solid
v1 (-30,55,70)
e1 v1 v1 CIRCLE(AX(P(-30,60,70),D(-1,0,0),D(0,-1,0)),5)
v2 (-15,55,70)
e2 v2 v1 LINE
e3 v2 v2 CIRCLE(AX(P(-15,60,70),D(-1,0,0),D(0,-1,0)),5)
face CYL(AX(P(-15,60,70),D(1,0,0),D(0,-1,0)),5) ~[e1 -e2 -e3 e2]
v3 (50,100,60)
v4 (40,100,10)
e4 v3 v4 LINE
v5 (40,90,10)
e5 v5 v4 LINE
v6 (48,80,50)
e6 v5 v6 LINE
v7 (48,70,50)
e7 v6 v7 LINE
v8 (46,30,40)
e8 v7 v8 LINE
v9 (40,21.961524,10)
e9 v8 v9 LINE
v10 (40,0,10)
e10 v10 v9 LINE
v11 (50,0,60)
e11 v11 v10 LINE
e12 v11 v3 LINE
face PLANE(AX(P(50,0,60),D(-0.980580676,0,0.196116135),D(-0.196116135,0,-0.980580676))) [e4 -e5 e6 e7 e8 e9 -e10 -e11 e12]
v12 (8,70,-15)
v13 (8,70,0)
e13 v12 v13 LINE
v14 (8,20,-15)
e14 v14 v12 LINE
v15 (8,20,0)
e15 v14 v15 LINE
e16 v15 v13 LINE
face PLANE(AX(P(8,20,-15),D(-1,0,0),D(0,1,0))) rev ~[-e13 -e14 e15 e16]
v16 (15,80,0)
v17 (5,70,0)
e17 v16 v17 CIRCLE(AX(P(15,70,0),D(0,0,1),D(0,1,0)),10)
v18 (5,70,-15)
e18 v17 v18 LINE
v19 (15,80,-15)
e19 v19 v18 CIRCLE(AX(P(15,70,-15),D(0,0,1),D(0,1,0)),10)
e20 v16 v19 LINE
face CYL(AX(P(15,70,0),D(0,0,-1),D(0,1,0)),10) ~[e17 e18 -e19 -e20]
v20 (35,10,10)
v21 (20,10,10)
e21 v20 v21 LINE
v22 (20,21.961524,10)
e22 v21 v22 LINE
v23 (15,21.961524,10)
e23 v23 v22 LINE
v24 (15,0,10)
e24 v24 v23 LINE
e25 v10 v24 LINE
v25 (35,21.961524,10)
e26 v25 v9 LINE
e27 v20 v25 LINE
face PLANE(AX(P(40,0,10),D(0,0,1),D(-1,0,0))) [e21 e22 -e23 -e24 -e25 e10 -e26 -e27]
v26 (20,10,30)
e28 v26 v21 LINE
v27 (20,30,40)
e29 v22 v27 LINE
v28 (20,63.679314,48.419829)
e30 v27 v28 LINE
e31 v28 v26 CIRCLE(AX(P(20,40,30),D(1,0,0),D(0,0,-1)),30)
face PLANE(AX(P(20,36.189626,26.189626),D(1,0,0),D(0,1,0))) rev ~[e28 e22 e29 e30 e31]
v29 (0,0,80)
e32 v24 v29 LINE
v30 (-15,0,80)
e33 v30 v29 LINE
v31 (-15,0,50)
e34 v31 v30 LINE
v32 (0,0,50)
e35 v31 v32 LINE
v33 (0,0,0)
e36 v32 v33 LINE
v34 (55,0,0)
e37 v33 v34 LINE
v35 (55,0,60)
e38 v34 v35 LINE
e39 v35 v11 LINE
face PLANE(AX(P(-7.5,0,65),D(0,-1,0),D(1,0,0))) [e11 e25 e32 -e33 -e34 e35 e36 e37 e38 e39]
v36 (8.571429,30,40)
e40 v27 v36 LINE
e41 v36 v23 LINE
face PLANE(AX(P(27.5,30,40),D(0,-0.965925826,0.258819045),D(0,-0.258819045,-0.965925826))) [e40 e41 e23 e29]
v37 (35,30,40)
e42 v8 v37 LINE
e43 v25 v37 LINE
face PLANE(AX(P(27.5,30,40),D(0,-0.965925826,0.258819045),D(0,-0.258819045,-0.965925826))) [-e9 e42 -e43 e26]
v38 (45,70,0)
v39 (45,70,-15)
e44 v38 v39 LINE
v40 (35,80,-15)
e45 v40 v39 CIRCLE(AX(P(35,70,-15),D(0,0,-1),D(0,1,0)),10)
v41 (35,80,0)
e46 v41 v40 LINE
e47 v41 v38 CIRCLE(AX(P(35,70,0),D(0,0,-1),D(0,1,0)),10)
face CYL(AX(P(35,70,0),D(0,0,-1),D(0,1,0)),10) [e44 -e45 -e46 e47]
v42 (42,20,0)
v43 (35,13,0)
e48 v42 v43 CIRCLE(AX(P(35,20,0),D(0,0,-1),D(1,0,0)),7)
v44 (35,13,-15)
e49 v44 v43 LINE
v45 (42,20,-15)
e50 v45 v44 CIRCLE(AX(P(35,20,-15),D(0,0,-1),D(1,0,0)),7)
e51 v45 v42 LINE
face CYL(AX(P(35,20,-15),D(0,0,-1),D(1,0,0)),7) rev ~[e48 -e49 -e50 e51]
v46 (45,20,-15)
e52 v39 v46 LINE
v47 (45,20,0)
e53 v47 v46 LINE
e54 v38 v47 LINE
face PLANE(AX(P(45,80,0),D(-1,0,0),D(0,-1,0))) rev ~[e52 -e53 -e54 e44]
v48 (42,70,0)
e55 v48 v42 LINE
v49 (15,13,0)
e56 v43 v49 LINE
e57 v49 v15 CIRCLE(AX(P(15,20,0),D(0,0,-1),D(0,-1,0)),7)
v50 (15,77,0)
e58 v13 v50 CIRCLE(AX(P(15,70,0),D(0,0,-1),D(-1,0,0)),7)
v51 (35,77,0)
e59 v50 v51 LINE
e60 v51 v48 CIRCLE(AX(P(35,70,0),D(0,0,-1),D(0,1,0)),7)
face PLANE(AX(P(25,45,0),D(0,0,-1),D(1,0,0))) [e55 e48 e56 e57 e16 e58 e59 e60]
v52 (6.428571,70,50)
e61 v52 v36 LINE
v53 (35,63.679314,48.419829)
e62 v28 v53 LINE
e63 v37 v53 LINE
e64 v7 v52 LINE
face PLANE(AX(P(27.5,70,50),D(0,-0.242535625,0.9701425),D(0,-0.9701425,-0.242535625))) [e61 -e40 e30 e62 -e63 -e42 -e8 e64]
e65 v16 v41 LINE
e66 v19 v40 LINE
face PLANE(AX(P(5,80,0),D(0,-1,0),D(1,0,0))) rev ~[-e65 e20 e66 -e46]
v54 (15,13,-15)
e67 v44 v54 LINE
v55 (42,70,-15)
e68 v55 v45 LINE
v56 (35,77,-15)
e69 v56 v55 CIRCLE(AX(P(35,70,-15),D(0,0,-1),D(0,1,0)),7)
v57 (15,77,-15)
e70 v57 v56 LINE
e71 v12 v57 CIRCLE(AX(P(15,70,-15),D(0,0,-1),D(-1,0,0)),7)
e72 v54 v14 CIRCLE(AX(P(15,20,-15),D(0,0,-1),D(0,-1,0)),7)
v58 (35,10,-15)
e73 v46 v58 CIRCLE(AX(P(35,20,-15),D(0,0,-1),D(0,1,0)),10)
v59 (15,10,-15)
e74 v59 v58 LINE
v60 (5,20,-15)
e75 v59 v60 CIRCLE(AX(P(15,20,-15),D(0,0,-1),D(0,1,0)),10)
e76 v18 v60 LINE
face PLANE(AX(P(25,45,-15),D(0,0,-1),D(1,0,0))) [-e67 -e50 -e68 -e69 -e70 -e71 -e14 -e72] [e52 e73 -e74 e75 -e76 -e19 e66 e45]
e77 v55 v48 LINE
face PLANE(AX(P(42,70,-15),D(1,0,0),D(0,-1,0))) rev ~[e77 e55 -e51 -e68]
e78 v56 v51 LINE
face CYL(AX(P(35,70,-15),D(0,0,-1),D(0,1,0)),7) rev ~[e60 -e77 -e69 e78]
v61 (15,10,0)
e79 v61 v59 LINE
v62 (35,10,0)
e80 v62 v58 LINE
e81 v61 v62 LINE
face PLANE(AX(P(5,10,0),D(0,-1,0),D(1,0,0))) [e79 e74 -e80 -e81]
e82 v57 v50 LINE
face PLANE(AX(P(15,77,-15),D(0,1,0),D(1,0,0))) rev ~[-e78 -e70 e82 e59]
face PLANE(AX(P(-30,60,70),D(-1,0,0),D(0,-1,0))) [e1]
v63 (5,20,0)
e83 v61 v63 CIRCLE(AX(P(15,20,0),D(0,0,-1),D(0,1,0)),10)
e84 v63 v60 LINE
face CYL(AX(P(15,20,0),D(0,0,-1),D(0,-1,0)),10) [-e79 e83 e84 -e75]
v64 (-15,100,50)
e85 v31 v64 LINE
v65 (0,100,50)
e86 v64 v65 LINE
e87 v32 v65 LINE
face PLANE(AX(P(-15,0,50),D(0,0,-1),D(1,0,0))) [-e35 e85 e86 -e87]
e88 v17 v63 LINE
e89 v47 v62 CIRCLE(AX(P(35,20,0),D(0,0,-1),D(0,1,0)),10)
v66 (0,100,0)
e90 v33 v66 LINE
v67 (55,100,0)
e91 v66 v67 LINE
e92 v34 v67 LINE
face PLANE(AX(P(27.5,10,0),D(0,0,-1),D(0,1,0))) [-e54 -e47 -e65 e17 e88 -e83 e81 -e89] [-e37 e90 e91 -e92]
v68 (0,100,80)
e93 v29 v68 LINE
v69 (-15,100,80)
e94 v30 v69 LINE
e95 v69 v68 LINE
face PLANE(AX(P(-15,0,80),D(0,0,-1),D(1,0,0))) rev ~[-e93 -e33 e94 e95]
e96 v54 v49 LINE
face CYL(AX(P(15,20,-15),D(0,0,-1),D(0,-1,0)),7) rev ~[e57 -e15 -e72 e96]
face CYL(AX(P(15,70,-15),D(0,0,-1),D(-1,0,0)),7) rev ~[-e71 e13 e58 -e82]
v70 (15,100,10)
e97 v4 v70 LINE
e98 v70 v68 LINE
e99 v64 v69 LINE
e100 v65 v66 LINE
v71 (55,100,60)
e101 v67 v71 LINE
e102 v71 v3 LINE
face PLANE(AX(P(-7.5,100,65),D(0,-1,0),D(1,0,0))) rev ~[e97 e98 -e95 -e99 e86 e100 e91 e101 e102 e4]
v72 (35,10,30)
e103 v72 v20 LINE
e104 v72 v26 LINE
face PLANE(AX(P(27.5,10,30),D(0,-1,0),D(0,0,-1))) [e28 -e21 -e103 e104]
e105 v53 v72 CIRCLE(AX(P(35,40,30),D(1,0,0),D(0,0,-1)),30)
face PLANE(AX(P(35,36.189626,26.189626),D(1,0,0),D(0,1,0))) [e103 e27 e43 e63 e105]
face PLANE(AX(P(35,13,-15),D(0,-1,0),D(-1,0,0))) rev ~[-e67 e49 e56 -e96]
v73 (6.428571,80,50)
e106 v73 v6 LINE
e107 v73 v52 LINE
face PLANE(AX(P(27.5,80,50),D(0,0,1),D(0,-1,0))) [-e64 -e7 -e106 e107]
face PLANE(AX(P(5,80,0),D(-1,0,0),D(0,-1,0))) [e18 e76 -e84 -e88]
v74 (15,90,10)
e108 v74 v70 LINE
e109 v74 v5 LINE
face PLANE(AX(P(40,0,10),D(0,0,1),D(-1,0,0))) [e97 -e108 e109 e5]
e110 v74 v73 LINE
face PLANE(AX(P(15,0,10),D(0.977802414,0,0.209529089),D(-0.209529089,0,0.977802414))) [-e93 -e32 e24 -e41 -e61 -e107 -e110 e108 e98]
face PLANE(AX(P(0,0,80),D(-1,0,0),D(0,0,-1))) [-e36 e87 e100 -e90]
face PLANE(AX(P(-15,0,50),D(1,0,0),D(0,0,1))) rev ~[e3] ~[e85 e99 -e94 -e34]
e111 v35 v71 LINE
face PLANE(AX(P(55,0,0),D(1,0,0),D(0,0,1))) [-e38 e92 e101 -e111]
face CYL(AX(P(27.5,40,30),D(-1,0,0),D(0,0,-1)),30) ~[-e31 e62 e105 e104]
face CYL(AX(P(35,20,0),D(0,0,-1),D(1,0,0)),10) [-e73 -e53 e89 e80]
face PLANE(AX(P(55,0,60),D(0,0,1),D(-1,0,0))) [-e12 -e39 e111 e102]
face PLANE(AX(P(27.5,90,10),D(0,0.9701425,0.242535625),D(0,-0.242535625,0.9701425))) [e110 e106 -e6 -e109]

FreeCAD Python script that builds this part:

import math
import FreeCAD as App
import Part
import Sketcher
Q = App.Units.Quantity


def edges_at(feature, points):
    """Names of the edges that pass closest to the given points."""
    edges = feature.Shape.Edges
    near = lambda p: min(range(len(edges)), key=lambda i: edges[i].distToShape(Part.Vertex(*p))[0])
    return sorted({f"Edge{near(p) + 1}" for p in points})

doc = App.newDocument("Part")
body = doc.addObject("PartDesign::Body", "Body")

# Sketch on XZ plane
sketch1 = body.newObject("Sketcher::SketchObject", "Sketch")
sketch1.AttachmentSupport = (doc.getObject("XZ_Plane"), [""])
sketch1.MapMode = "FlatFace"
sketch1.addGeometry([
    Part.LineSegment(App.Vector(15, 10, 0), App.Vector(0, 80, 0)),  # 0
    Part.LineSegment(App.Vector(0, 80, 0), App.Vector(0, 0, 0)),  # 1
    Part.LineSegment(App.Vector(0, 0, 0), App.Vector(55, 0, 0)),  # 2
    Part.LineSegment(App.Vector(55, 0, 0), App.Vector(55, 60, 0)),  # 3
    Part.LineSegment(App.Vector(55, 60, 0), App.Vector(50, 60, 0)),  # 4
    Part.LineSegment(App.Vector(50, 60, 0), App.Vector(40, 10, 0)),  # 5
    Part.LineSegment(App.Vector(40, 10, 0), App.Vector(15, 10, 0)),  # 6
], False)
sketch1.addConstraint([
    Sketcher.Constraint("Coincident", 0, 2, 1, 1),
    Sketcher.Constraint("Coincident", 1, 2, 2, 1),
    Sketcher.Constraint("Coincident", 2, 2, 3, 1),
    Sketcher.Constraint("Coincident", 3, 2, 4, 1),
    Sketcher.Constraint("Coincident", 4, 2, 5, 1),
    Sketcher.Constraint("Coincident", 5, 2, 6, 1),
    Sketcher.Constraint("Coincident", 6, 2, 0, 1),
    Sketcher.Constraint("Vertical", 1),
    Sketcher.Constraint("Horizontal", 2),
    Sketcher.Constraint("Vertical", 3),
    Sketcher.Constraint("Horizontal", 4),
    Sketcher.Constraint("Horizontal", 6),
    Sketcher.Constraint("Coincident", 1, 2, -1, 1),
    Sketcher.Constraint("DistanceX", 2, 1, 2, 2, 55.0),
    Sketcher.Constraint("DistanceX", 4, 2, 4, 1, 5.0),
    Sketcher.Constraint("DistanceX", 6, 2, 6, 1, 25.0),
    Sketcher.Constraint("DistanceY", 1, 2, 1, 1, 80.0),
    Sketcher.Constraint("DistanceY", 3, 1, 3, 2, 60.0),
    Sketcher.Constraint("DistanceX", -1, 1, 5, 2, 40.0),
    Sketcher.Constraint("DistanceY", -1, 1, 5, 2, 10.0),
])
pad1 = body.newObject("PartDesign::Pad", "Pad")
pad1.Profile = sketch1
pad1.Length = 100
pad1.Reversed = True

# Sketch on YZ plane
sketch2 = body.newObject("Sketcher::SketchObject", "Sketch001")
sketch2.AttachmentSupport = (doc.getObject("YZ_Plane"), [""])
sketch2.MapMode = "FlatFace"
sketch2.AttachmentOffset = App.Placement(App.Vector(0, 0, 27.5), App.Rotation())
sketch2.addGeometry([
    Part.LineSegment(App.Vector(30, 40, 0), App.Vector(21.961524, 10, 0)),  # 0
    Part.LineSegment(App.Vector(21.961524, 10, 0), App.Vector(90, 10, 0)),  # 1
    Part.LineSegment(App.Vector(90, 10, 0), App.Vector(80, 50, 0)),  # 2
    Part.LineSegment(App.Vector(80, 50, 0), App.Vector(70, 50, 0)),  # 3
    Part.LineSegment(App.Vector(70, 50, 0), App.Vector(30, 40, 0)),  # 4
], False)
sketch2.addConstraint([
    Sketcher.Constraint("Coincident", 0, 2, 1, 1),
    Sketcher.Constraint("Coincident", 1, 2, 2, 1),
    Sketcher.Constraint("Coincident", 2, 2, 3, 1),
    Sketcher.Constraint("Coincident", 3, 2, 4, 1),
    Sketcher.Constraint("Coincident", 4, 2, 0, 1),
    Sketcher.Constraint("Horizontal", 1),
    Sketcher.Constraint("Horizontal", 3),
    Sketcher.Constraint("Perpendicular", 2, 4),
    Sketcher.Constraint("Equal", 2, 4),
    Sketcher.Constraint("DistanceX", 3, 2, 3, 1, 10.0),
    Sketcher.Constraint("Angle", 0, Q("-105 deg")),
    Sketcher.Constraint("DistanceY", -1, 1, 0, 2, 10.0),
    Sketcher.Constraint("DistanceX", -1, 1, 1, 2, 90.0),
    Sketcher.Constraint("DistanceX", -1, 1, 2, 2, 80.0),
    Sketcher.Constraint("DistanceY", -1, 1, 2, 2, 50.0),
])
pad2 = body.newObject("PartDesign::Pad", "Pad001")
pad2.Profile = sketch2
pad2.Type = "TwoLengths"
pad2.Length = 20.5
pad2.Length2 = 21.071429

# Sketch on YZ plane
sketch3 = body.newObject("Sketcher::SketchObject", "Sketch002")
sketch3.AttachmentSupport = (doc.getObject("YZ_Plane"), [""])
sketch3.MapMode = "FlatFace"
sketch3.AttachmentOffset = App.Placement(App.Vector(0, 0, 27.5), App.Rotation())
sketch3.addGeometry([
    Part.LineSegment(App.Vector(10, 0, 0), App.Vector(40, 0, 0)),
    Part.ArcOfCircle(Part.Circle(App.Vector(40, 30, 0), App.Vector(0, 0, 1), 30), math.radians(-90), math.radians(180)),
    Part.LineSegment(App.Vector(10, 30, 0), App.Vector(10, 0, 0)),
], False)
sketch3.addConstraint([
    Sketcher.Constraint("Tangent", 0, 2, 1, 1),
    Sketcher.Constraint("Tangent", 1, 2, 2, 1),
    Sketcher.Constraint("Coincident", 2, 2, 0, 1),
    Sketcher.Constraint("Horizontal", 0),
    Sketcher.Constraint("Vertical", 2),
    Sketcher.Constraint("PointOnObject", 0, 2, -1),
    Sketcher.Constraint("Radius", 1, 30.0),
    Sketcher.Constraint("DistanceX", -1, 1, 1, 3, 40.0),
])
pad3 = body.newObject("PartDesign::Pad", "Pad002")
pad3.Profile = sketch3
pad3.Type = "TwoLengths"
pad3.Length = 7.5
pad3.Length2 = 7.5

# Sketch on XZ plane
sketch4 = body.newObject("Sketcher::SketchObject", "Sketch003")
sketch4.AttachmentSupport = (doc.getObject("XZ_Plane"), [""])
sketch4.MapMode = "FlatFace"
sketch4.addGeometry([
    Part.LineSegment(App.Vector(-15, 80, 0), App.Vector(-15, 50, 0)),
    Part.LineSegment(App.Vector(-15, 50, 0), App.Vector(0, 50, 0)),
    Part.LineSegment(App.Vector(0, 50, 0), App.Vector(0, 80, 0)),
    Part.LineSegment(App.Vector(0, 80, 0), App.Vector(-15, 80, 0)),
], False)
sketch4.addConstraint([
    Sketcher.Constraint("Coincident", 0, 2, 1, 1),
    Sketcher.Constraint("Coincident", 1, 2, 2, 1),
    Sketcher.Constraint("Coincident", 2, 2, 3, 1),
    Sketcher.Constraint("Coincident", 3, 2, 0, 1),
    Sketcher.Constraint("Vertical", 0),
    Sketcher.Constraint("Horizontal", 1),
    Sketcher.Constraint("Vertical", 2),
    Sketcher.Constraint("Horizontal", 3),
    Sketcher.Constraint("PointOnObject", 1, 2, -2),
    Sketcher.Constraint("DistanceX", 1, 1, 1, 2, 15.0),
    Sketcher.Constraint("DistanceY", 0, 2, 0, 1, 30.0),
    Sketcher.Constraint("DistanceY", -1, 1, 0, 2, 50.0),
])
pad4 = body.newObject("PartDesign::Pad", "Pad003")
pad4.Profile = sketch4
pad4.Length = 100
pad4.Reversed = True

# Sketch on YZ plane
sketch5 = body.newObject("Sketcher::SketchObject", "Sketch004")
sketch5.AttachmentSupport = (doc.getObject("YZ_Plane"), [""])
sketch5.MapMode = "FlatFace"
sketch5.AttachmentOffset = App.Placement(App.Vector(0, 0, -15), App.Rotation())
sketch5.addGeometry(Part.Circle(App.Vector(60, 70, 0), App.Vector(0, 0, 1), 5), False)
sketch5.addConstraint([
    Sketcher.Constraint("Diameter", 0, 10.0),
    Sketcher.Constraint("DistanceX", -1, 1, 0, 3, 60.0),
    Sketcher.Constraint("DistanceY", -1, 1, 0, 3, 70.0),
])
pad5 = body.newObject("PartDesign::Pad", "Pad004")
pad5.Profile = sketch5
pad5.Length = 15
pad5.Reversed = True

# Sketch on XY plane
sketch6 = body.newObject("Sketcher::SketchObject", "Sketch005")
sketch6.AttachmentSupport = (doc.getObject("XY_Plane"), [""])
sketch6.MapMode = "FlatFace"
sketch6.addGeometry([
    Part.LineSegment(App.Vector(5, 10, 0), App.Vector(5, 80, 0)),
    Part.LineSegment(App.Vector(5, 80, 0), App.Vector(45, 80, 0)),
    Part.LineSegment(App.Vector(45, 80, 0), App.Vector(45, 10, 0)),
    Part.LineSegment(App.Vector(45, 10, 0), App.Vector(5, 10, 0)),
], False)
sketch6.addConstraint([
    Sketcher.Constraint("Coincident", 0, 2, 1, 1),
    Sketcher.Constraint("Coincident", 1, 2, 2, 1),
    Sketcher.Constraint("Coincident", 2, 2, 3, 1),
    Sketcher.Constraint("Coincident", 3, 2, 0, 1),
    Sketcher.Constraint("Vertical", 0),
    Sketcher.Constraint("Horizontal", 1),
    Sketcher.Constraint("Vertical", 2),
    Sketcher.Constraint("Horizontal", 3),
    Sketcher.Constraint("DistanceX", 1, 1, 1, 2, 40.0),
    Sketcher.Constraint("DistanceY", 0, 1, 0, 2, 70.0),
    Sketcher.Constraint("DistanceX", -1, 1, 0, 2, 5.0),
    Sketcher.Constraint("DistanceY", -1, 1, 0, 2, 80.0),
])
pad6 = body.newObject("PartDesign::Pad", "Pad005")
pad6.Profile = sketch6
pad6.Length = 15
pad6.Reversed = True
doc.recompute()

fillet = body.newObject("PartDesign::Fillet", "Fillet")
fillet.Base = (pad6, edges_at(pad6, [
    (45, 10, -7.5),
    (5, 10, -7.5),
    (45, 80, -7.5),
    (5, 80, -7.5),
]))
fillet.Radius = 10

# Sketch on XY plane
sketch7 = body.newObject("Sketcher::SketchObject", "Sketch006")
sketch7.AttachmentSupport = (doc.getObject("XY_Plane"), [""])
sketch7.MapMode = "FlatFace"
sketch7.AttachmentOffset = App.Placement(App.Vector(0, 0, -15), App.Rotation())
sketch7.addGeometry([
    Part.LineSegment(App.Vector(8, 20, 0), App.Vector(8, 70, 0)),  # 0
    Part.ArcOfCircle(Part.Circle(App.Vector(15, 70, 0), App.Vector(0, 0, 1), 7), math.radians(90), math.radians(180)),  # 1
    Part.LineSegment(App.Vector(15, 77, 0), App.Vector(35, 77, 0)),  # 2
    Part.ArcOfCircle(Part.Circle(App.Vector(35, 70, 0), App.Vector(0, 0, 1), 7), math.radians(0), math.radians(90)),  # 3
    Part.LineSegment(App.Vector(42, 70, 0), App.Vector(42, 20, 0)),  # 4
    Part.ArcOfCircle(Part.Circle(App.Vector(35, 20, 0), App.Vector(0, 0, 1), 7), math.radians(-90), math.radians(0)),  # 5
    Part.LineSegment(App.Vector(35, 13, 0), App.Vector(15, 13, 0)),  # 6
    Part.ArcOfCircle(Part.Circle(App.Vector(15, 20, 0), App.Vector(0, 0, 1), 7), math.radians(180), math.radians(270)),  # 7
], False)
sketch7.addConstraint([
    Sketcher.Constraint("Tangent", 0, 2, 1, 2),
    Sketcher.Constraint("Tangent", 1, 1, 2, 1),
    Sketcher.Constraint("Tangent", 2, 2, 3, 2),
    Sketcher.Constraint("Tangent", 3, 1, 4, 1),
    Sketcher.Constraint("Tangent", 4, 2, 5, 2),
    Sketcher.Constraint("Tangent", 5, 1, 6, 1),
    Sketcher.Constraint("Tangent", 6, 2, 7, 2),
    Sketcher.Constraint("Tangent", 7, 1, 0, 1),
    Sketcher.Constraint("Vertical", 0),
    Sketcher.Constraint("Horizontal", 2),
    Sketcher.Constraint("Vertical", 4),
    Sketcher.Constraint("Horizontal", 6),
    Sketcher.Constraint("Equal", 1, 3),
    Sketcher.Constraint("Equal", 3, 5),
    Sketcher.Constraint("Equal", 5, 7),
    Sketcher.Constraint("Radius", 1, 7.0),
    Sketcher.Constraint("DistanceX", 2, 1, 2, 2, 20.0),
    Sketcher.Constraint("DistanceY", 0, 1, 0, 2, 50.0),
    Sketcher.Constraint("DistanceX", -1, 1, 1, 3, 15.0),
    Sketcher.Constraint("DistanceY", -1, 1, 1, 3, 70.0),
])
pocket1 = body.newObject("PartDesign::Pocket", "Pocket")
pocket1.Profile = sketch7
pocket1.Length = 15
pocket1.Reversed = True

doc.recompute()
